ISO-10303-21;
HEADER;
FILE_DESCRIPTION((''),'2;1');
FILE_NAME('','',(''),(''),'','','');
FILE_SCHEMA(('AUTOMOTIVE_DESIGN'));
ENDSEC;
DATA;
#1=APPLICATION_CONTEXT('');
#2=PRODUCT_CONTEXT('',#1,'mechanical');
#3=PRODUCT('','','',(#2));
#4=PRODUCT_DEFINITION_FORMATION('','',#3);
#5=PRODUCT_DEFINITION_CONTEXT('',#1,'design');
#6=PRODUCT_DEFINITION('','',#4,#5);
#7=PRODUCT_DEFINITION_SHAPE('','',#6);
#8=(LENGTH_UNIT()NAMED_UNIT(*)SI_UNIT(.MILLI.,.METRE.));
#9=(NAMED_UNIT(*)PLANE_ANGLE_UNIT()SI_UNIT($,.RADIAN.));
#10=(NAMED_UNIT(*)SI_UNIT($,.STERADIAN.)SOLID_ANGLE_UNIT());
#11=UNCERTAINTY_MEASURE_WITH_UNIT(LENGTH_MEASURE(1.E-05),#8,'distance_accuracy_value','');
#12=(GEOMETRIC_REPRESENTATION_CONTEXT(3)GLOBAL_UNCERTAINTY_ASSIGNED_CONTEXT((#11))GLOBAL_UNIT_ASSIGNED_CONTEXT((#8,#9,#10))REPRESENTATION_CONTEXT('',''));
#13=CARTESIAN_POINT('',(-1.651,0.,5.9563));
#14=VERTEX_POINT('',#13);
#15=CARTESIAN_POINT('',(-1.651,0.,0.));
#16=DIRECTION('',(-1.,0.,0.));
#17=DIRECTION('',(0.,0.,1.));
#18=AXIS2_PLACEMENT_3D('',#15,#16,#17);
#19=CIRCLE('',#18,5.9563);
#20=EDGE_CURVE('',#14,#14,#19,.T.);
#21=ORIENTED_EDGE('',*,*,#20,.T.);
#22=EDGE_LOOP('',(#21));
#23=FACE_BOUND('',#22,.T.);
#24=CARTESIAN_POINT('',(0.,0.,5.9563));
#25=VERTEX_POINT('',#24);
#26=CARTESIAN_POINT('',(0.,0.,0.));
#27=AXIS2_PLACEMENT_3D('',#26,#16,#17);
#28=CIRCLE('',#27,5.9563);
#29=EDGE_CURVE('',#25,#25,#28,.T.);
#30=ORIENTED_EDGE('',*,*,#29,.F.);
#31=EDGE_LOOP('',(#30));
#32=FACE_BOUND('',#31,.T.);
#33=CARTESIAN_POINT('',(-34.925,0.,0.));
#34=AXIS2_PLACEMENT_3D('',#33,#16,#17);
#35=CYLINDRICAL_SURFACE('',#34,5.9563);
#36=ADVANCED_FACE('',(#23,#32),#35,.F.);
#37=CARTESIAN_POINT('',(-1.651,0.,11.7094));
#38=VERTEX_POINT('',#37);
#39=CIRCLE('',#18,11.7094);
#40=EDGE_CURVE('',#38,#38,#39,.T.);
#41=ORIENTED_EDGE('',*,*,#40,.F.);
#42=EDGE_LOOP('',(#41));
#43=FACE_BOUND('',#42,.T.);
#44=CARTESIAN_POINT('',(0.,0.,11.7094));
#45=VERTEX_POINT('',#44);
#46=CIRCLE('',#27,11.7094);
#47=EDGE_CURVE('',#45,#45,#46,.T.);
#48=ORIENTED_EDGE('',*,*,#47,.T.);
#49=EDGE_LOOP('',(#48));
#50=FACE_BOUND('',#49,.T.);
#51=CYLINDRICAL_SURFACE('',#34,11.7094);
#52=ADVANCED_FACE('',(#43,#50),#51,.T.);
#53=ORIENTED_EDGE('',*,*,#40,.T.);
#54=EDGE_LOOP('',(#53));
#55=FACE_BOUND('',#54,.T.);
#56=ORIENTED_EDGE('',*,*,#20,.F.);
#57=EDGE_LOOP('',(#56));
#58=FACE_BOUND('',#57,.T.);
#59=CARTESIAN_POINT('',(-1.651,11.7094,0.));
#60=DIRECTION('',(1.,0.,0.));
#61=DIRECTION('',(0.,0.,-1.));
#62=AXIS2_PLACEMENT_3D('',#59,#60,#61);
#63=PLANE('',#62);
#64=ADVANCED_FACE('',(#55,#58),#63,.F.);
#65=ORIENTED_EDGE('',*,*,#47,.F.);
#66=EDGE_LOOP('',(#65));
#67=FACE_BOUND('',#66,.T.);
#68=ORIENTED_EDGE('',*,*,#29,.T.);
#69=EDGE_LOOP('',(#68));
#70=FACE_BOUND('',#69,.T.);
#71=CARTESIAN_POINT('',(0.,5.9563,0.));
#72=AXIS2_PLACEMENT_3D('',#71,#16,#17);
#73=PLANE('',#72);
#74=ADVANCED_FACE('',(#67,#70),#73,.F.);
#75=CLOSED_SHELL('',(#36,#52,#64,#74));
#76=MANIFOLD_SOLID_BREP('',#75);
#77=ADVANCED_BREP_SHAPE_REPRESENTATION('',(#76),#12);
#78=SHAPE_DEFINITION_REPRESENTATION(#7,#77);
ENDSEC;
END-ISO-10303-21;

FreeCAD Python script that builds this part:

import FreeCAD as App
import Part
import Sketcher

V = App.Vector
Q = App.Units.Quantity

doc = App.newDocument("Part")
body = doc.addObject("PartDesign::Body", "Body")

# Sketch on XY plane
sketch1 = body.newObject("Sketcher::SketchObject", "Sketch")
sketch1.AttachmentSupport = (doc.getObject("XY_Plane"), [""])
sketch1.MapMode = "FlatFace"
sketch1.addGeometry([
    Part.LineSegment(V(-1.7, 11.7, 0), V(-1.7, 6, 0)),
    Part.LineSegment(V(-1.7, 6, 0), V(0, 6, 0)),
    Part.LineSegment(V(0, 6, 0), V(0, 11.7, 0)),
    Part.LineSegment(V(0, 11.7, 0), V(-1.7, 11.7, 0)),
], False)
sketch1.addConstraint([
    Sketcher.Constraint("Coincident", 0, 2, 1, 1),
    Sketcher.Constraint("Coincident", 1, 2, 2, 1),
    Sketcher.Constraint("Coincident", 2, 2, 3, 1),
    Sketcher.Constraint("Coincident", 3, 2, 0, 1),
    Sketcher.Constraint("Vertical", 0),
    Sketcher.Constraint("Horizontal", 1),
    Sketcher.Constraint("Vertical", 2),
    Sketcher.Constraint("Horizontal", 3),
    Sketcher.Constraint("PointOnObject", 1, 2, -2),
    Sketcher.Constraint("DistanceX", 1, 1, 1, 2, Q("0.065 in")),
    Sketcher.Constraint("DistanceY", 0, 2, 0, 1, Q("0.2265 in")),
    Sketcher.Constraint("DistanceY", -1, 1, 2, 2, Q("0.461 in")),
])
revolution = body.newObject("PartDesign::Revolution", "Revolution")
revolution.Profile = sketch1
revolution.ReferenceAxis = (sketch1, ["H_Axis"])
revolution.Angle = 360

doc.recompute()
